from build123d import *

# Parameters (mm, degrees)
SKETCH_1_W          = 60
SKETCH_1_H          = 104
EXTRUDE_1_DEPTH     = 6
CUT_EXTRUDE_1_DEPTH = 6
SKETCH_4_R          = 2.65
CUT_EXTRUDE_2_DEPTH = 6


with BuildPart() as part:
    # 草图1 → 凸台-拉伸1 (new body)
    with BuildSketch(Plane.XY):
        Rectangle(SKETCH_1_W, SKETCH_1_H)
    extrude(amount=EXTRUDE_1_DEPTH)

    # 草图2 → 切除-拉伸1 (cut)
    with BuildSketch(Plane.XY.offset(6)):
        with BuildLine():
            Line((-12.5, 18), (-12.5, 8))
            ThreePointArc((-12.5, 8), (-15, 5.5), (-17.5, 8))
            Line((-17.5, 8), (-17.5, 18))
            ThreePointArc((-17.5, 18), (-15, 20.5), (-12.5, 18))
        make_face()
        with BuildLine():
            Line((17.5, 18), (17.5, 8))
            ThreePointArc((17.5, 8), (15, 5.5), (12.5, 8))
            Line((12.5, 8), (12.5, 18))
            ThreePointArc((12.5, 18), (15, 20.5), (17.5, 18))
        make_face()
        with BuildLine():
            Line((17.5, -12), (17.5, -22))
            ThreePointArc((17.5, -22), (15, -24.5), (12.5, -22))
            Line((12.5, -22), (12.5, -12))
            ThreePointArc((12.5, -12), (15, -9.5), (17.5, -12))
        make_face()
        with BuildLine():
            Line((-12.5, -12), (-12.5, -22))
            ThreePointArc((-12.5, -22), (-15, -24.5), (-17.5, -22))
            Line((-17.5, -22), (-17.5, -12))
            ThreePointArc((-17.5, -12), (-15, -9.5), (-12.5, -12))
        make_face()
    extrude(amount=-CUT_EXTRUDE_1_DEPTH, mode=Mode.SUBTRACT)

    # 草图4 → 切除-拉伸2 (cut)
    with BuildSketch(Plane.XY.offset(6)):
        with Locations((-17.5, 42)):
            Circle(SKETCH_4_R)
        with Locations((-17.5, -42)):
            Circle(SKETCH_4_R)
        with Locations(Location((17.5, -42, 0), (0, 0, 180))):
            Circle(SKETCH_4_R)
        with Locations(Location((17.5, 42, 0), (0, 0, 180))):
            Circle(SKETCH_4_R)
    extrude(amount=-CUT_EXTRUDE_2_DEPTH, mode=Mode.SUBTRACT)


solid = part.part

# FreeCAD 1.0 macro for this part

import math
import FreeCAD as App
import Part
import Sketcher
Q = App.Units.Quantity


def add_polygon(sketch, points):
    """Adds a closed chain of lines whose ends are joined by coincident constraints."""
    first, n = sketch.GeometryCount, len(points)
    for a, b in zip(points, points[1:] + points[:1]):
        sketch.addGeometry(Part.LineSegment(App.Vector(*a, 0), App.Vector(*b, 0)), False)
    for i in range(n):
        sketch.addConstraint(Sketcher.Constraint("Coincident", first + i, 2, first + (i + 1) % n, 1))

doc = App.newDocument("Part")
params = doc.addObject("Spreadsheet::Sheet", "Params")
for row, (alias, value) in enumerate([
    ("sketch1_width", "60 mm"),
    ("sketch1_height", "104 mm"),
    ("pad1_length", "6 mm"),
    ("sketch2_radius", "2.5 mm"),
    ("sketch2_height", "10 mm"),
    ("pocket1_length", "6 mm"),
    ("sketch3_diameter", "5.3 mm"),
    ("pocket2_length", "6 mm"),
], start=1):
    params.set(f"A{row}", alias)
    params.set(f"B{row}", "=" + value)
    params.setAlias(f"B{row}", alias)

body = doc.addObject("PartDesign::Body", "Body")

# Sketch on XY plane
sketch1 = body.newObject("Sketcher::SketchObject", "Sketch")
sketch1.AttachmentSupport = (doc.getObject("XY_Plane"), [""])
sketch1.MapMode = "FlatFace"
add_polygon(sketch1, [(-30, 52), (-30, -52), (30, -52), (30, 52)])  # lines 0-3
sketch1.addConstraint([
    Sketcher.Constraint("Vertical", 0),
    Sketcher.Constraint("Horizontal", 1),
    Sketcher.Constraint("Vertical", 2),
    Sketcher.Constraint("Horizontal", 3),
    Sketcher.Constraint("Symmetric", 0, 2, 2, 2, -1, 1),
    Sketcher.Constraint("DistanceX", 1, 1, 1, 2, Q("60 mm")),
    Sketcher.Constraint("DistanceY", 0, 2, 0, 1, Q("104 mm")),
])
sketch1.setExpression("Constraints[9]", "Params.sketch1_width")
sketch1.setExpression("Constraints[10]", "Params.sketch1_height")
pad1 = body.newObject("PartDesign::Pad", "Pad")
pad1.Profile = sketch1
pad1.setExpression("Length", "Params.pad1_length")

# Sketch on XY plane
sketch2 = body.newObject("Sketcher::SketchObject", "Sketch001")
sketch2.AttachmentSupport = (doc.getObject("XY_Plane"), [""])
sketch2.MapMode = "FlatFace"
sketch2.AttachmentOffset = App.Placement(App.Vector(0, 0, 6), App.Rotation())
sketch2.addGeometry([
    Part.LineSegment(App.Vector(-12.5, 8, 0), App.Vector(-12.5, 18, 0)),  # 0
    Part.ArcOfCircle(Part.Circle(App.Vector(-15, 18, 0), App.Vector(0, 0, 1), 2.5), math.radians(0), math.radians(180)),  # 1
    Part.LineSegment(App.Vector(-17.5, 18, 0), App.Vector(-17.5, 8, 0)),  # 2
    Part.ArcOfCircle(Part.Circle(App.Vector(-15, 8, 0), App.Vector(0, 0, 1), 2.5), math.radians(180), math.radians(360)),  # 3
    Part.LineSegment(App.Vector(17.5, 8, 0), App.Vector(17.5, 18, 0)),  # 4
    Part.ArcOfCircle(Part.Circle(App.Vector(15, 18, 0), App.Vector(0, 0, 1), 2.5), math.radians(0), math.radians(180)),  # 5
    Part.LineSegment(App.Vector(12.5, 18, 0), App.Vector(12.5, 8, 0)),  # 6
    Part.ArcOfCircle(Part.Circle(App.Vector(15, 8, 0), App.Vector(0, 0, 1), 2.5), math.radians(180), math.radians(360)),  # 7
    Part.LineSegment(App.Vector(17.5, -22, 0), App.Vector(17.5, -12, 0)),  # 8
    Part.ArcOfCircle(Part.Circle(App.Vector(15, -12, 0), App.Vector(0, 0, 1), 2.5), math.radians(0), math.radians(180)),  # 9
    Part.LineSegment(App.Vector(12.5, -12, 0), App.Vector(12.5, -22, 0)),  # 10
    Part.ArcOfCircle(Part.Circle(App.Vector(15, -22, 0), App.Vector(0, 0, 1), 2.5), math.radians(180), math.radians(360)),  # 11
    Part.LineSegment(App.Vector(-12.5, -22, 0), App.Vector(-12.5, -12, 0)),  # 12
    Part.ArcOfCircle(Part.Circle(App.Vector(-15, -12, 0), App.Vector(0, 0, 1), 2.5), math.radians(0), math.radians(180)),  # 13
    Part.LineSegment(App.Vector(-17.5, -12, 0), App.Vector(-17.5, -22, 0)),  # 14
    Part.ArcOfCircle(Part.Circle(App.Vector(-15, -22, 0), App.Vector(0, 0, 1), 2.5), math.radians(180), math.radians(360)),  # 15
], False)
sketch2.addConstraint([
    Sketcher.Constraint("Tangent", 0, 2, 1, 1),
    Sketcher.Constraint("Tangent", 1, 2, 2, 1),
    Sketcher.Constraint("Tangent", 2, 2, 3, 1),
    Sketcher.Constraint("Tangent", 3, 2, 0, 1),
    Sketcher.Constraint("Tangent", 4, 2, 5, 1),
    Sketcher.Constraint("Tangent", 5, 2, 6, 1),
    Sketcher.Constraint("Tangent", 6, 2, 7, 1),
    Sketcher.Constraint("Tangent", 7, 2, 4, 1),
    Sketcher.Constraint("Tangent", 8, 2, 9, 1),
    Sketcher.Constraint("Tangent", 9, 2, 10, 1),
    Sketcher.Constraint("Tangent", 10, 2, 11, 1),
    Sketcher.Constraint("Tangent", 11, 2, 8, 1),
    Sketcher.Constraint("Tangent", 12, 2, 13, 1),
    Sketcher.Constraint("Tangent", 13, 2, 14, 1),
    Sketcher.Constraint("Tangent", 14, 2, 15, 1),
    Sketcher.Constraint("Tangent", 15, 2, 12, 1),
    Sketcher.Constraint("Vertical", 0),
    Sketcher.Constraint("Vertical", 2),
    Sketcher.Constraint("Vertical", 4),
    Sketcher.Constraint("Vertical", 6),
    Sketcher.Constraint("Vertical", 8),
    Sketcher.Constraint("Vertical", 10),
    Sketcher.Constraint("Vertical", 12),
    Sketcher.Constraint("Vertical", 14),
    Sketcher.Constraint("Equal", 3, 5),
    Sketcher.Constraint("Equal", 7, 9),
    Sketcher.Constraint("Equal", 11, 13),
    Sketcher.Constraint("Symmetric", 1, 3, 5, 3, -2),
    Sketcher.Constraint("Symmetric", 9, 3, 13, 3, -2),
    Sketcher.Constraint("Horizontal", 3, 3, 7, 3),
    Sketcher.Constraint("Horizontal", 11, 3, 15, 3),
    Sketcher.Constraint("Vertical", 7, 3, 9, 3),
    Sketcher.Constraint("Equal", 6, 8),
    Sketcher.Constraint("Radius", 1, Q("2.5 mm")),
    Sketcher.Constraint("DistanceY", 0, 1, 0, 2, Q("10 mm")),
    Sketcher.Constraint("DistanceX", 1, 3, -1, 1, Q("15 mm")),
    Sketcher.Constraint("DistanceY", -1, 1, 1, 3, Q("18 mm")),
    Sketcher.Constraint("DistanceY", 9, 3, -1, 1, Q("12 mm")),
])
sketch2.setExpression("Constraints[33]", "Params.sketch2_radius")
sketch2.setExpression("Constraints[34]", "Params.sketch2_height")
pocket1 = body.newObject("PartDesign::Pocket", "Pocket")
pocket1.Profile = sketch2
pocket1.setExpression("Length", "Params.pocket1_length")

# Sketch on XY plane
sketch3 = body.newObject("Sketcher::SketchObject", "Sketch002")
sketch3.AttachmentSupport = (doc.getObject("XY_Plane"), [""])
sketch3.MapMode = "FlatFace"
sketch3.AttachmentOffset = App.Placement(App.Vector(0, 0, 6), App.Rotation())
sketch3.addGeometry([
    Part.Circle(App.Vector(-17.5, 42, 0), App.Vector(0, 0, 1), 2.6),
    Part.Circle(App.Vector(-17.5, -42, 0), App.Vector(0, 0, 1), 2.6),
    Part.Circle(App.Vector(17.5, -42, 0), App.Vector(0, 0, 1), 2.6),
    Part.Circle(App.Vector(17.5, 42, 0), App.Vector(0, 0, 1), 2.6),
], False)
sketch3.addConstraint([
    Sketcher.Constraint("Equal", 0, 1),
    Sketcher.Constraint("Equal", 1, 2),
    Sketcher.Constraint("Equal", 2, 3),
    Sketcher.Constraint("Symmetric", 0, 3, 2, 3, -1, 1),
    Sketcher.Constraint("Symmetric", 1, 3, 3, 3, -1, 1),
    Sketcher.Constraint("Symmetric", 1, 3, 2, 3, -2),
    Sketcher.Constraint("Diameter", 0, Q("5.3 mm")),
    Sketcher.Constraint("DistanceY", -1, 1, 0, 3, Q("42 mm")),
    Sketcher.Constraint("DistanceX", 1, 3, 2, 3, Q("35 mm")),
])
sketch3.setExpression("Constraints[6]", "Params.sketch3_diameter")
pocket2 = body.newObject("PartDesign::Pocket", "Pocket001")
pocket2.Profile = sketch3
pocket2.setExpression("Length", "Params.pocket2_length")

doc.recompute()
